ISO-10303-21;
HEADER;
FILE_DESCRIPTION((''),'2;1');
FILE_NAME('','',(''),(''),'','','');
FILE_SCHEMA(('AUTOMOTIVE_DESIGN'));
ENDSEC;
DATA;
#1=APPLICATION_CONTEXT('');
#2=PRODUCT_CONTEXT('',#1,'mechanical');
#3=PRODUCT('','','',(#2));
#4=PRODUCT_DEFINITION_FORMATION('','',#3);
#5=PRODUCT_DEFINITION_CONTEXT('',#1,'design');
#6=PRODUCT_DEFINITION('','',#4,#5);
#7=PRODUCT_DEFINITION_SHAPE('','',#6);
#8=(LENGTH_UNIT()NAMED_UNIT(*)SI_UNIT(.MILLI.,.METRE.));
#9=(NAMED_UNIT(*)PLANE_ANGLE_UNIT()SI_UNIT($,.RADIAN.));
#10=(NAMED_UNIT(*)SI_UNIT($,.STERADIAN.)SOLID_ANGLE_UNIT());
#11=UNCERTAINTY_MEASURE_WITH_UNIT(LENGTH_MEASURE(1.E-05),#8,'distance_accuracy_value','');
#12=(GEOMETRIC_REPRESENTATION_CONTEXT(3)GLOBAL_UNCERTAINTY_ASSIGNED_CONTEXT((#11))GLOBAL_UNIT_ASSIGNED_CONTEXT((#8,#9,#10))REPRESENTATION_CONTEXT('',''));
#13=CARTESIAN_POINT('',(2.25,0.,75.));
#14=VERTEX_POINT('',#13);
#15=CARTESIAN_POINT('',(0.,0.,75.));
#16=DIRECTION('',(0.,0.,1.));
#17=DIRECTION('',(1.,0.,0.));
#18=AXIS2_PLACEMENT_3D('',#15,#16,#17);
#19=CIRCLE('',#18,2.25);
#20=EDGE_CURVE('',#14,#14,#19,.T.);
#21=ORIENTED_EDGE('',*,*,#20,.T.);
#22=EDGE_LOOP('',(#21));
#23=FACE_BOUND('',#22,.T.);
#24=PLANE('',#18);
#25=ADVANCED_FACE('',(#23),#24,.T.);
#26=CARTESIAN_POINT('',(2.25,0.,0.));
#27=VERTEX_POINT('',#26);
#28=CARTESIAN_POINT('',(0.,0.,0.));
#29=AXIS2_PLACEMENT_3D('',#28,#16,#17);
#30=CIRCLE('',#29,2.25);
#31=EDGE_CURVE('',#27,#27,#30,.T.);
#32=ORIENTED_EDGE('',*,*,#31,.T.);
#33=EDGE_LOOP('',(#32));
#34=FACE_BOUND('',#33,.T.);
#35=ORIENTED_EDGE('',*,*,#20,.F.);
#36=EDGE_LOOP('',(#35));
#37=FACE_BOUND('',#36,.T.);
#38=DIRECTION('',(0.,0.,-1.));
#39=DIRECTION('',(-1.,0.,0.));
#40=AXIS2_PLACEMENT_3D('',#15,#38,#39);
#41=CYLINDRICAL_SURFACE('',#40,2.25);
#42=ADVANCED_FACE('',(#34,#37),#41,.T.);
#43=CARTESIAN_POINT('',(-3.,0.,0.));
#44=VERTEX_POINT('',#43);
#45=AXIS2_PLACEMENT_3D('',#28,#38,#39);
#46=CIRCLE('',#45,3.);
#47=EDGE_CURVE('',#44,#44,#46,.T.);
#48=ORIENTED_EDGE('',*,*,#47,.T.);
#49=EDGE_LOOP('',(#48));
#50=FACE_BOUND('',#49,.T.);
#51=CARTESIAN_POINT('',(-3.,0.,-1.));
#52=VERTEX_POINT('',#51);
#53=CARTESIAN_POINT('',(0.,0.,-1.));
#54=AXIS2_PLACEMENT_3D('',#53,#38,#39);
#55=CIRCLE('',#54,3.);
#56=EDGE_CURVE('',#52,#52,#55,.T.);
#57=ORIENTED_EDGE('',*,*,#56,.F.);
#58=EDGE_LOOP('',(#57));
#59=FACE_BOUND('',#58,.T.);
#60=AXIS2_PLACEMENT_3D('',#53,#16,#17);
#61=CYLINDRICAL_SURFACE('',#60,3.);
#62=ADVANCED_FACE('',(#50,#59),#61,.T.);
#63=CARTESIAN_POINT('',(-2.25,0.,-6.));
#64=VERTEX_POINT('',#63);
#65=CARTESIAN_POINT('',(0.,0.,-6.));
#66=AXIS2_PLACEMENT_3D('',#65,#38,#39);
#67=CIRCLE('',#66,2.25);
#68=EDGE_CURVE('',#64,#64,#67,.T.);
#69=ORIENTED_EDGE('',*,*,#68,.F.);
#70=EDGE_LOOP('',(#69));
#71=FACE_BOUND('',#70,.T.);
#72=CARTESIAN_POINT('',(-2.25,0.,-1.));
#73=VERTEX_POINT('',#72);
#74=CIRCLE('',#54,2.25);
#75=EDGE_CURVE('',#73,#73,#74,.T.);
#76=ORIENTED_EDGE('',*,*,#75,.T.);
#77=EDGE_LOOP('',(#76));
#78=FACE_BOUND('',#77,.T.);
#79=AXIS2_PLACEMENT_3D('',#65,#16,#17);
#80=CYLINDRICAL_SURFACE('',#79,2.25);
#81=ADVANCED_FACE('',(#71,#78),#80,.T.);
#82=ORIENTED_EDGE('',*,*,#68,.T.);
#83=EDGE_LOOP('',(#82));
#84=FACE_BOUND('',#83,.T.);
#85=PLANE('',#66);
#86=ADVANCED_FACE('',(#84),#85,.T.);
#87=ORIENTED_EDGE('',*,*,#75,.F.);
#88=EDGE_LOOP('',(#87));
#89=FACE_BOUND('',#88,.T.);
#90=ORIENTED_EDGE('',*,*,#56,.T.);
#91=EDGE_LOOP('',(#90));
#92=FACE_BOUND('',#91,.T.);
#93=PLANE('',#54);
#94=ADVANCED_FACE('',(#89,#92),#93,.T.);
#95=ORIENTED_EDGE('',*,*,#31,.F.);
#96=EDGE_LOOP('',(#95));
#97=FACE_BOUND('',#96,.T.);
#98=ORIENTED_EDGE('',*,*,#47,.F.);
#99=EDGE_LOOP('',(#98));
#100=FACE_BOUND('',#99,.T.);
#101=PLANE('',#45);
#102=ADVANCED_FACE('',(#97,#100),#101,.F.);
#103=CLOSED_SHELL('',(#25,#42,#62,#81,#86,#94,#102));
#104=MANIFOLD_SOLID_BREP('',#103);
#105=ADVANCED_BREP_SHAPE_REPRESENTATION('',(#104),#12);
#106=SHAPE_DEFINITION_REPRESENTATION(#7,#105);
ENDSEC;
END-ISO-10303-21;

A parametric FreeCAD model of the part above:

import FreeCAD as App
import Part
import Sketcher
from FreeCAD import Vector

doc = App.newDocument("Part")
body = doc.addObject("PartDesign::Body", "Body")

# Sketch on XY plane
sketch1 = body.newObject("Sketcher::SketchObject", "Sketch")
sketch1.AttachmentSupport = (doc.getObject("XY_Plane"), [""])
sketch1.MapMode = "FlatFace"
sketch1.addGeometry(Part.Circle(Vector(0, 0, 0), Vector(0, 0, 1), 2.2), False)
sketch1.addConstraint([
    Sketcher.Constraint("Coincident", 0, 3, -1, 1),
    Sketcher.Constraint("Diameter", 0, 4.5),
])
pad1 = body.newObject("PartDesign::Pad", "Pad")
pad1.Profile = sketch1
pad1.Length = 75

# Sketch on XY plane
sketch2 = body.newObject("Sketcher::SketchObject", "Sketch001")
sketch2.AttachmentSupport = (doc.getObject("XY_Plane"), [""])
sketch2.MapMode = "FlatFace"
sketch2.addGeometry(Part.Circle(Vector(0, 0, 0), Vector(0, 0, 1), 3), False)
sketch2.addConstraint([
    Sketcher.Constraint("Coincident", 0, 3, -1, 1),
    Sketcher.Constraint("Diameter", 0, 6.0),
])
pad2 = body.newObject("PartDesign::Pad", "Pad001")
pad2.Profile = sketch2
pad2.Length = 1
pad2.Reversed = True

# Sketch on XY plane
sketch3 = body.newObject("Sketcher::SketchObject", "Sketch002")
sketch3.AttachmentSupport = (doc.getObject("XY_Plane"), [""])
sketch3.MapMode = "FlatFace"
sketch3.AttachmentOffset = App.Placement(Vector(0, 0, -6), App.Rotation())
sketch3.addGeometry(Part.Circle(Vector(0, 0, 0), Vector(0, 0, 1), 2.2), False)
sketch3.addConstraint([
    Sketcher.Constraint("Coincident", 0, 3, -1, 1),
    Sketcher.Constraint("Diameter", 0, 4.5),
])
pad3 = body.newObject("PartDesign::Pad", "Pad002")
pad3.Profile = sketch3
pad3.Length = 5

doc.recompute()
